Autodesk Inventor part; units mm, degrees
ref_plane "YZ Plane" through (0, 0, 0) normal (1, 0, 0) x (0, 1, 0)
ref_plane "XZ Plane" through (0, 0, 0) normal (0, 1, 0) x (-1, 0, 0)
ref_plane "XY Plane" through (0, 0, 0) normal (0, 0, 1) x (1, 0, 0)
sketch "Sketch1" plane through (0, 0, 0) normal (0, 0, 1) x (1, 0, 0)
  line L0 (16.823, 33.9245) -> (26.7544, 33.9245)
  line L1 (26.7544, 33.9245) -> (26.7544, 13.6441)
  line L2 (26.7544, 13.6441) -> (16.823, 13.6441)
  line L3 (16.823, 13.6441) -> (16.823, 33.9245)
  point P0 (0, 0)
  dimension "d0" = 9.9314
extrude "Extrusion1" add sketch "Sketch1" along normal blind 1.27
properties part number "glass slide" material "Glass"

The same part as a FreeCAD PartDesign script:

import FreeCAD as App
import Part
import Sketcher

V = App.Vector
Q = App.Units.Quantity


def add_polygon(sketch, points):
    """Adds a closed chain of lines whose ends are joined by coincident constraints."""
    first, n = sketch.GeometryCount, len(points)
    for a, b in zip(points, points[1:] + points[:1]):
        sketch.addGeometry(Part.LineSegment(App.Vector(*a, 0), App.Vector(*b, 0)), False)
    for i in range(n):
        sketch.addConstraint(Sketcher.Constraint("Coincident", first + i, 2, first + (i + 1) % n, 1))

doc = App.newDocument("Part")
params = doc.addObject("Spreadsheet::Sheet", "Params")
for row, (alias, value) in enumerate([
    ("sketch1_width", "0.391 in"),
    ("pad1_length", "0.05 in"),
], start=1):
    params.set(f"A{row}", alias)
    params.set(f"B{row}", "=" + value)
    params.setAlias(f"B{row}", alias)

body = doc.addObject("PartDesign::Body", "Body")

sketch1 = body.newObject("Sketcher::SketchObject", "Sketch")
sketch1.AttachmentSupport = (doc.getObject("XY_Plane"), [""])
sketch1.MapMode = "FlatFace"
add_polygon(sketch1, [(26.7544, 33.9245), (16.823, 33.9245), (16.823, 13.6441), (26.7544, 13.6441)])
sketch1.addConstraint([
    Sketcher.Constraint("Horizontal", 0),
    Sketcher.Constraint("Vertical", 1),
    Sketcher.Constraint("Horizontal", 2),
    Sketcher.Constraint("Vertical", 3),
    Sketcher.Constraint("DistanceX", 0, 2, 0, 1, Q("0.391 in")),
    Sketcher.Constraint("DistanceY", 1, 2, 1, 1, 20.2804),
    Sketcher.Constraint("DistanceY", -1, 1, 0, 2, Q("1.3356 in")),
    Sketcher.Constraint("DistanceX", -1, 1, 0, 2, 16.823),
])
sketch1.setExpression("Constraints[8]", "Params.sketch1_width")
pad1 = body.newObject("PartDesign::Pad", "Pad")
pad1.Profile = sketch1
pad1.setExpression("Length", "Params.pad1_length")

doc.recompute()
